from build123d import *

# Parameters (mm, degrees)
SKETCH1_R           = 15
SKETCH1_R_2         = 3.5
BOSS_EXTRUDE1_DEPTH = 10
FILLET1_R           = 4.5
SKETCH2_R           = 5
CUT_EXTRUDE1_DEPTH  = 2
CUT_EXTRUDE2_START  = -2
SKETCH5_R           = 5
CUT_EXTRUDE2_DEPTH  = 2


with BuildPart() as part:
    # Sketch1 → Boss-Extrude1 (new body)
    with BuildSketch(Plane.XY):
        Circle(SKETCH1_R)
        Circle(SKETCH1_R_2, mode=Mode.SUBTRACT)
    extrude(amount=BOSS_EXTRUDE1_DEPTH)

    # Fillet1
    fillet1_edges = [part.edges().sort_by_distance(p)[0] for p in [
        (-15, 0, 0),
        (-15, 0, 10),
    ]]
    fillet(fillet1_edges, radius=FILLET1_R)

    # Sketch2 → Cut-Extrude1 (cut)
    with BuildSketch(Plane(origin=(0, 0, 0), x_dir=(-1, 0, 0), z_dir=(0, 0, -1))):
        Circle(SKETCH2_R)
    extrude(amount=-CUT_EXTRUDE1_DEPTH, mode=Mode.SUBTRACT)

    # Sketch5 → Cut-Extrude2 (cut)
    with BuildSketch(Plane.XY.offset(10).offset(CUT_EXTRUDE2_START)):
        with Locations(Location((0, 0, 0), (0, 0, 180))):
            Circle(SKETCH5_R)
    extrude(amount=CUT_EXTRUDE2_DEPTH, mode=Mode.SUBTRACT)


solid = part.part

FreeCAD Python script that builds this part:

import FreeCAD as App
import Part
import Sketcher


def edges_at(feature, points):
    """Names of the edges that pass closest to the given points."""
    edges = feature.Shape.Edges
    near = lambda p: min(range(len(edges)), key=lambda i: edges[i].distToShape(Part.Vertex(*p))[0])
    return sorted({f"Edge{near(p) + 1}" for p in points})

doc = App.newDocument("Part")
params = doc.addObject("Spreadsheet::Sheet", "Params")
for row, (alias, value) in enumerate([
    ("sketch1_diameter", "30 mm"),
    ("sketch1_diameter2", "7 mm"),
    ("pad1_length", "10 mm"),
    ("fillet_radius", "4.5 mm"),
    ("sketch2_diameter", "10 mm"),
    ("pocket1_length", "2 mm"),
    ("sketch3_diameter", "10 mm"),
    ("pocket2_length", "2 mm"),
], start=1):
    params.set(f"A{row}", alias)
    params.set(f"B{row}", "=" + value)
    params.setAlias(f"B{row}", alias)

body = doc.addObject("PartDesign::Body", "Body")

sketch1 = body.newObject("Sketcher::SketchObject", "Sketch")
sketch1.AttachmentSupport = (doc.getObject("XY_Plane"), [""])
sketch1.MapMode = "FlatFace"
sketch1.addGeometry([
    Part.Circle(App.Vector(0, 0, 0), App.Vector(0, 0, 1), 15),
    Part.Circle(App.Vector(0, 0, 0), App.Vector(0, 0, 1), 3.5),
], False)
sketch1.addConstraint([
    Sketcher.Constraint("Coincident", 0, 3, -1, 1),
    Sketcher.Constraint("Coincident", 1, 3, -1, 1),
    Sketcher.Constraint("Diameter", 0, 30.0),
    Sketcher.Constraint("Diameter", 1, 7.0),
])
sketch1.setExpression("Constraints[2]", "Params.sketch1_diameter")
sketch1.setExpression("Constraints[3]", "Params.sketch1_diameter2")
pad1 = body.newObject("PartDesign::Pad", "Pad")
pad1.Profile = sketch1
pad1.setExpression("Length", "Params.pad1_length")
doc.recompute()

fillet = body.newObject("PartDesign::Fillet", "Fillet")
fillet.Base = (pad1, edges_at(pad1, [(-15, 0, 0), (-15, 0, 10)]))
fillet.setExpression("Radius", "Params.fillet_radius")

sketch2 = body.newObject("Sketcher::SketchObject", "Sketch001")
sketch2.AttachmentSupport = (doc.getObject("XY_Plane"), [""])
sketch2.MapMode = "FlatFace"
sketch2.addGeometry(Part.Circle(App.Vector(0, 0, 0), App.Vector(0, 0, 1), 5), False)
sketch2.addConstraint([
    Sketcher.Constraint("Coincident", 0, 3, -1, 1),
    Sketcher.Constraint("Diameter", 0, 10.0),
])
sketch2.setExpression("Constraints[1]", "Params.sketch2_diameter")
pocket1 = body.newObject("PartDesign::Pocket", "Pocket")
pocket1.Profile = sketch2
pocket1.setExpression("Length", "Params.pocket1_length")
pocket1.Reversed = True

sketch3 = body.newObject("Sketcher::SketchObject", "Sketch002")
sketch3.AttachmentSupport = (doc.getObject("XY_Plane"), [""])
sketch3.MapMode = "FlatFace"
sketch3.AttachmentOffset = App.Placement(App.Vector(0, 0, 8), App.Rotation())
sketch3.addGeometry(Part.Circle(App.Vector(0, 0, 0), App.Vector(0, 0, 1), 5), False)
sketch3.addConstraint([
    Sketcher.Constraint("Coincident", 0, 3, -1, 1),
    Sketcher.Constraint("Diameter", 0, 10.0),
])
sketch3.setExpression("Constraints[1]", "Params.sketch3_diameter")
pocket2 = body.newObject("PartDesign::Pocket", "Pocket001")
pocket2.Profile = sketch3
pocket2.setExpression("Length", "Params.pocket2_length")
pocket2.Reversed = True

doc.recompute()
